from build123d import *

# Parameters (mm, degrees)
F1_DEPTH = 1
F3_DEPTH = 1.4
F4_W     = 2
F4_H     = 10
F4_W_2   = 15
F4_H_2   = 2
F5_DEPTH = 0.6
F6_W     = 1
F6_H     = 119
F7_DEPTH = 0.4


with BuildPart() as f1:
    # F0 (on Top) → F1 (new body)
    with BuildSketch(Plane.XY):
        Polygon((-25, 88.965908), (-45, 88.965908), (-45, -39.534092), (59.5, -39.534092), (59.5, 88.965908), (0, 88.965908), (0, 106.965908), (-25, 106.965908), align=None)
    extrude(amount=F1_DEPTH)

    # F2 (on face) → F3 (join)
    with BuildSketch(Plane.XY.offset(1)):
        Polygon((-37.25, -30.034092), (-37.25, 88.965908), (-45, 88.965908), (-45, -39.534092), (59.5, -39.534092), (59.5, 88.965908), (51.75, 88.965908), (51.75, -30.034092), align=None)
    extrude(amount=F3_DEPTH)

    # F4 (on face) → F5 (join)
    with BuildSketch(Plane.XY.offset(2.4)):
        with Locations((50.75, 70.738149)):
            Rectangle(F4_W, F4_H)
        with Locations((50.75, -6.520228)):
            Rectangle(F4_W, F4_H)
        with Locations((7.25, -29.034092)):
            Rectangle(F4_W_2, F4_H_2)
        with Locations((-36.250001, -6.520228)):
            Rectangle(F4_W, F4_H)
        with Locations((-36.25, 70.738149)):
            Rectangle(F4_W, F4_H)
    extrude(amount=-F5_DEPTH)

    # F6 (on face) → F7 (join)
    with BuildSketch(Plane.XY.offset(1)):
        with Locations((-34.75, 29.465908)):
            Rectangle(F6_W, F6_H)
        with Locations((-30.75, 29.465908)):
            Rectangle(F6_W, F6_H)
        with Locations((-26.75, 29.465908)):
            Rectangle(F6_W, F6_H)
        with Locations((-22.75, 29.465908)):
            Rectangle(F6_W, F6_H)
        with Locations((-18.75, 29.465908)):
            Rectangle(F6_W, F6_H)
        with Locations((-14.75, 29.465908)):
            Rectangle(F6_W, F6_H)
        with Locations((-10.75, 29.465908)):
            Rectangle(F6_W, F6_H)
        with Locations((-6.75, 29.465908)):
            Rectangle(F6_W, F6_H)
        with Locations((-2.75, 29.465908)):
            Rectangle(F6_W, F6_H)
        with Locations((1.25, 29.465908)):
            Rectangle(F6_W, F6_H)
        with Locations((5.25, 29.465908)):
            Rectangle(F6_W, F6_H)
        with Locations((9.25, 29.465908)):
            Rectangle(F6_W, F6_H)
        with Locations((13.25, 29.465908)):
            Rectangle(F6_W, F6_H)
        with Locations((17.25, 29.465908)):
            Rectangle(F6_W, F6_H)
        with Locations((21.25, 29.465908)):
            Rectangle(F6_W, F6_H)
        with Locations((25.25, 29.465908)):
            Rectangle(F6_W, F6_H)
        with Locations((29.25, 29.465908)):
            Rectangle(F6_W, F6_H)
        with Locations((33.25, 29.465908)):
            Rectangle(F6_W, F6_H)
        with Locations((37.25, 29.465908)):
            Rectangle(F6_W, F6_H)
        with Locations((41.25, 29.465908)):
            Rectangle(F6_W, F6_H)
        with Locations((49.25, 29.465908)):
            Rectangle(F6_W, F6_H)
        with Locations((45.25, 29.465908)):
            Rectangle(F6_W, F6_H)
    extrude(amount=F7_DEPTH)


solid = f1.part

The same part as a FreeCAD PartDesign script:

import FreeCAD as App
import Part
import Sketcher

V = App.Vector


def add_polygon(sketch, points):
    """Adds a closed chain of lines whose ends are joined by coincident constraints."""
    first, n = sketch.GeometryCount, len(points)
    for a, b in zip(points, points[1:] + points[:1]):
        sketch.addGeometry(Part.LineSegment(App.Vector(*a, 0), App.Vector(*b, 0)), False)
    for i in range(n):
        sketch.addConstraint(Sketcher.Constraint("Coincident", first + i, 2, first + (i + 1) % n, 1))

doc = App.newDocument("Part")
params = doc.addObject("Spreadsheet::Sheet", "Params")
for row, (alias, value) in enumerate([
    ("sketch1_width", "20 mm"),
    ("sketch1_width2", "25 mm"),
    ("sketch1_height", "18 mm"),
    ("sketch1_width3", "104.5 mm"),
    ("sketch1_height2", "128.5 mm"),
    ("pad1_length", "1 mm"),
    ("sketch2_width", "89 mm"),
    ("sketch2_height", "119 mm"),
    ("sketch2_width2", "104.5 mm"),
    ("sketch2_height2", "128.5 mm"),
    ("pad2_length", "1.4 mm"),
    ("sketch3_width", "2 mm"),
    ("sketch3_width2", "15 mm"),
    ("sketch3_height", "10 mm"),
    ("pad3_length", "0.6 mm"),
    ("sketch4_width", "1 mm"),
    ("sketch4_height", "119 mm"),
    ("pad4_length", "0.4 mm"),
], start=1):
    params.set(f"A{row}", alias)
    params.set(f"B{row}", "=" + value)
    params.setAlias(f"B{row}", alias)

body = doc.addObject("PartDesign::Body", "Body")

sketch1 = body.newObject("Sketcher::SketchObject", "Sketch")
sketch1.AttachmentSupport = (doc.getObject("XY_Plane"), [""])
sketch1.MapMode = "FlatFace"
add_polygon(sketch1, [(-25, 89), (-45, 89), (-45, -40), (60, -40), (60, 89), (0, 89), (0, 107), (-25, 107)])
sketch1.addConstraint([
    Sketcher.Constraint("Horizontal", 0),
    Sketcher.Constraint("Vertical", 1),
    Sketcher.Constraint("Horizontal", 2),
    Sketcher.Constraint("Vertical", 3),
    Sketcher.Constraint("Horizontal", 4),
    Sketcher.Constraint("Vertical", 5),
    Sketcher.Constraint("Horizontal", 6),
    Sketcher.Constraint("Vertical", 7),
    Sketcher.Constraint("PointOnObject", 4, 2, -2),
    Sketcher.Constraint("Horizontal", 0, 2, 3, 2),
    Sketcher.Constraint("DistanceX", 0, 2, 0, 1, 20.0),
    Sketcher.Constraint("DistanceX", 6, 2, 6, 1, 25.0),
    Sketcher.Constraint("DistanceY", 5, 1, 5, 2, 18.0),
    Sketcher.Constraint("DistanceX", 2, 1, 2, 2, 104.5),
    Sketcher.Constraint("DistanceY", 1, 2, 1, 1, 128.5),
    Sketcher.Constraint("DistanceY", -1, 1, 0, 2, 88.965908),
])
sketch1.setExpression("Constraints[18]", "Params.sketch1_width")
sketch1.setExpression("Constraints[19]", "Params.sketch1_width2")
sketch1.setExpression("Constraints[20]", "Params.sketch1_height")
sketch1.setExpression("Constraints[21]", "Params.sketch1_width3")
sketch1.setExpression("Constraints[22]", "Params.sketch1_height2")
pad1 = body.newObject("PartDesign::Pad", "Pad")
pad1.Profile = sketch1
pad1.setExpression("Length", "Params.pad1_length")

sketch2 = body.newObject("Sketcher::SketchObject", "Sketch001")
sketch2.AttachmentSupport = (doc.getObject("XY_Plane"), [""])
sketch2.MapMode = "FlatFace"
sketch2.AttachmentOffset = App.Placement(V(0, 0, 1), App.Rotation())
add_polygon(sketch2, [(-37, -30), (-37, 89), (-45, 89), (-45, -40), (60, -40), (60, 89), (52, 89), (52, -30)])
sketch2.addConstraint([
    Sketcher.Constraint("Vertical", 0),
    Sketcher.Constraint("Horizontal", 1),
    Sketcher.Constraint("Vertical", 2),
    Sketcher.Constraint("Horizontal", 3),
    Sketcher.Constraint("Vertical", 4),
    Sketcher.Constraint("Horizontal", 5),
    Sketcher.Constraint("Vertical", 6),
    Sketcher.Constraint("Horizontal", 7),
    Sketcher.Constraint("Horizontal", 1, 2, 4, 2),
    Sketcher.Constraint("Equal", 1, 5),
    Sketcher.Constraint("DistanceX", 7, 2, 7, 1, 89.0),
    Sketcher.Constraint("DistanceY", 0, 1, 0, 2, 119.0),
    Sketcher.Constraint("DistanceX", 3, 1, 3, 2, 104.5),
    Sketcher.Constraint("DistanceY", 2, 2, 2, 1, 128.5),
    Sketcher.Constraint("DistanceX", 1, 2, -1, 1, 45.0),
    Sketcher.Constraint("DistanceY", -1, 1, 0, 2, 88.965908),
])
sketch2.setExpression("Constraints[18]", "Params.sketch2_width")
sketch2.setExpression("Constraints[19]", "Params.sketch2_height")
sketch2.setExpression("Constraints[20]", "Params.sketch2_width2")
sketch2.setExpression("Constraints[21]", "Params.sketch2_height2")
pad2 = body.newObject("PartDesign::Pad", "Pad001")
pad2.Profile = sketch2
pad2.setExpression("Length", "Params.pad2_length")

sketch3 = body.newObject("Sketcher::SketchObject", "Sketch002")
sketch3.AttachmentSupport = (doc.getObject("XY_Plane"), [""])
sketch3.MapMode = "FlatFace"
sketch3.AttachmentOffset = App.Placement(V(0, 0, 2.4), App.Rotation())
add_polygon(sketch3, [(49.8, 75.7), (49.8, 65.7), (51.8, 65.7), (51.8, 75.7)])
add_polygon(sketch3, [(49.8, -1.5), (49.8, -11.5), (51.8, -11.5), (51.8, -1.5)])
add_polygon(sketch3, [(-0.2, -28), (-0.2, -30), (14.8, -30), (14.8, -28)])
add_polygon(sketch3, [(-37.3, -1.5), (-37.3, -11.5), (-35.3, -11.5), (-35.3, -1.5)])
add_polygon(sketch3, [(-37.2, 75.7), (-37.2, 65.7), (-35.2, 65.7), (-35.2, 75.7)])
sketch3.addConstraint([
    Sketcher.Constraint("Vertical", 0),
    Sketcher.Constraint("Horizontal", 1),
    Sketcher.Constraint("Vertical", 2),
    Sketcher.Constraint("Horizontal", 3),
    Sketcher.Constraint("Vertical", 4),
    Sketcher.Constraint("Horizontal", 5),
    Sketcher.Constraint("Vertical", 6),
    Sketcher.Constraint("Horizontal", 7),
    Sketcher.Constraint("Vertical", 8),
    Sketcher.Constraint("Horizontal", 9),
    Sketcher.Constraint("Vertical", 10),
    Sketcher.Constraint("Horizontal", 11),
    Sketcher.Constraint("Vertical", 12),
    Sketcher.Constraint("Horizontal", 13),
    Sketcher.Constraint("Vertical", 14),
    Sketcher.Constraint("Horizontal", 15),
    Sketcher.Constraint("Vertical", 16),
    Sketcher.Constraint("Horizontal", 17),
    Sketcher.Constraint("Vertical", 18),
    Sketcher.Constraint("Horizontal", 19),
    Sketcher.Constraint("Horizontal", 5, 2, 12, 2),
    Sketcher.Constraint("Horizontal", 7, 2, 14, 2),
    Sketcher.Constraint("Horizontal", 1, 2, 16, 2),
    Sketcher.Constraint("Horizontal", 3, 2, 18, 2),
    Sketcher.Constraint("Vertical", 3, 2, 4, 2),
    Sketcher.Constraint("Vertical", 2, 2, 5, 2),
    Sketcher.Constraint("Vertical", 15, 2, 16, 2),
    Sketcher.Constraint("Vertical", 14, 2, 17, 2),
    Sketcher.Constraint("Equal", 7, 13),
    Sketcher.Constraint("Equal", 2, 4),
    Sketcher.Constraint("Equal", 19, 8),
    Sketcher.Constraint("DistanceX", 1, 1, 1, 2, 2.0),
    Sketcher.Constraint("DistanceX", 9, 1, 9, 2, 15.0),
    Sketcher.Constraint("DistanceY", 0, 2, 0, 1, 10.0),
    Sketcher.Constraint("DistanceX", 8, 2, 4, 2, 50.0),
    Sketcher.Constraint("DistanceX", 12, 2, 11, 2, 37.000001),
    Sketcher.Constraint("DistanceX", -1, 1, 0, 2, 49.75),
    Sketcher.Constraint("DistanceY", -1, 1, 0, 2, 65.738149),
    Sketcher.Constraint("DistanceY", 8, 2, 0, 2, 95.772241),
    Sketcher.Constraint("DistanceY", 4, 2, -1, 1, 11.520228),
])
sketch3.setExpression("Constraints[51]", "Params.sketch3_width")
sketch3.setExpression("Constraints[52]", "Params.sketch3_width2")
sketch3.setExpression("Constraints[53]", "Params.sketch3_height")
pad3 = body.newObject("PartDesign::Pad", "Pad002")
pad3.Profile = sketch3
pad3.setExpression("Length", "Params.pad3_length")
pad3.Reversed = True

sketch4 = body.newObject("Sketcher::SketchObject", "Sketch003")
sketch4.AttachmentSupport = (doc.getObject("XY_Plane"), [""])
sketch4.MapMode = "FlatFace"
sketch4.AttachmentOffset = App.Placement(V(0, 0, 1), App.Rotation())
add_polygon(sketch4, [(-35.2, 89), (-35.2, -30), (-34.2, -30), (-34.2, 89)])
add_polygon(sketch4, [(-31.2, 89), (-31.2, -30), (-30.2, -30), (-30.2, 89)])
add_polygon(sketch4, [(-27.2, 89), (-27.2, -30), (-26.2, -30), (-26.2, 89)])
add_polygon(sketch4, [(-23.2, 89), (-23.2, -30), (-22.2, -30), (-22.2, 89)])
add_polygon(sketch4, [(-19.2, 89), (-19.2, -30), (-18.2, -30), (-18.2, 89)])
add_polygon(sketch4, [(-15.2, 89), (-15.2, -30), (-14.2, -30), (-14.2, 89)])
add_polygon(sketch4, [(-11.2, 89), (-11.2, -30), (-10.2, -30), (-10.2, 89)])
add_polygon(sketch4, [(-7.2, 89), (-7.2, -30), (-6.2, -30), (-6.2, 89)])
add_polygon(sketch4, [(-3.2, 89), (-3.2, -30), (-2.2, -30), (-2.2, 89)])
add_polygon(sketch4, [(0.8, 89), (0.8, -30), (1.8, -30), (1.8, 89)])
add_polygon(sketch4, [(4.8, 89), (4.8, -30), (5.8, -30), (5.8, 89)])
add_polygon(sketch4, [(8.8, 89), (8.8, -30), (9.8, -30), (9.8, 89)])
add_polygon(sketch4, [(12.8, 89), (12.8, -30), (13.8, -30), (13.8, 89)])
add_polygon(sketch4, [(16.8, 89), (16.8, -30), (17.8, -30), (17.8, 89)])
add_polygon(sketch4, [(20.8, 89), (20.8, -30), (21.8, -30), (21.8, 89)])
add_polygon(sketch4, [(24.8, 89), (24.8, -30), (25.8, -30), (25.8, 89)])
add_polygon(sketch4, [(28.8, 89), (28.8, -30), (29.8, -30), (29.8, 89)])
add_polygon(sketch4, [(32.8, 89), (32.8, -30), (33.8, -30), (33.8, 89)])
add_polygon(sketch4, [(36.8, 89), (36.8, -30), (37.8, -30), (37.8, 89)])
add_polygon(sketch4, [(40.8, 89), (40.8, -30), (41.8, -30), (41.8, 89)])
add_polygon(sketch4, [(48.8, 89), (48.8, -30), (49.8, -30), (49.8, 89)])
add_polygon(sketch4, [(44.8, 89), (44.8, -30), (45.8, -30), (45.8, 89)])
sketch4.addConstraint([
    Sketcher.Constraint("Vertical", 0),
    Sketcher.Constraint("Horizontal", 1),
    Sketcher.Constraint("Vertical", 2),
    Sketcher.Constraint("Horizontal", 3),
    Sketcher.Constraint("Vertical", 4),
    Sketcher.Constraint("Horizontal", 5),
    Sketcher.Constraint("Vertical", 6),
    Sketcher.Constraint("Horizontal", 7),
    Sketcher.Constraint("Vertical", 8),
    Sketcher.Constraint("Horizontal", 9),
    Sketcher.Constraint("Vertical", 10),
    Sketcher.Constraint("Horizontal", 11),
    Sketcher.Constraint("Vertical", 12),
    Sketcher.Constraint("Horizontal", 13),
    Sketcher.Constraint("Vertical", 14),
    Sketcher.Constraint("Horizontal", 15),
    Sketcher.Constraint("Vertical", 16),
    Sketcher.Constraint("Horizontal", 17),
    Sketcher.Constraint("Vertical", 18),
    Sketcher.Constraint("Horizontal", 19),
    Sketcher.Constraint("Vertical", 20),
    Sketcher.Constraint("Horizontal", 21),
    Sketcher.Constraint("Vertical", 22),
    Sketcher.Constraint("Horizontal", 23),
    Sketcher.Constraint("Vertical", 24),
    Sketcher.Constraint("Horizontal", 25),
    Sketcher.Constraint("Vertical", 26),
    Sketcher.Constraint("Horizontal", 27),
    Sketcher.Constraint("Vertical", 28),
    Sketcher.Constraint("Horizontal", 29),
    Sketcher.Constraint("Vertical", 30),
    Sketcher.Constraint("Horizontal", 31),
    Sketcher.Constraint("Vertical", 32),
    Sketcher.Constraint("Horizontal", 33),
    Sketcher.Constraint("Vertical", 34),
    Sketcher.Constraint("Horizontal", 35),
    Sketcher.Constraint("Vertical", 36),
    Sketcher.Constraint("Horizontal", 37),
    Sketcher.Constraint("Vertical", 38),
    Sketcher.Constraint("Horizontal", 39),
    Sketcher.Constraint("Vertical", 40),
    Sketcher.Constraint("Horizontal", 41),
    Sketcher.Constraint("Vertical", 42),
    Sketcher.Constraint("Horizontal", 43),
    Sketcher.Constraint("Vertical", 44),
    Sketcher.Constraint("Horizontal", 45),
    Sketcher.Constraint("Vertical", 46),
    Sketcher.Constraint("Horizontal", 47),
    Sketcher.Constraint("Vertical", 48),
    Sketcher.Constraint("Horizontal", 49),
    Sketcher.Constraint("Vertical", 50),
    Sketcher.Constraint("Horizontal", 51),
    Sketcher.Constraint("Vertical", 52),
    Sketcher.Constraint("Horizontal", 53),
    Sketcher.Constraint("Vertical", 54),
    Sketcher.Constraint("Horizontal", 55),
    Sketcher.Constraint("Vertical", 56),
    Sketcher.Constraint("Horizontal", 57),
    Sketcher.Constraint("Vertical", 58),
    Sketcher.Constraint("Horizontal", 59),
    Sketcher.Constraint("Vertical", 60),
    Sketcher.Constraint("Horizontal", 61),
    Sketcher.Constraint("Vertical", 62),
    Sketcher.Constraint("Horizontal", 63),
    Sketcher.Constraint("Vertical", 64),
    Sketcher.Constraint("Horizontal", 65),
    Sketcher.Constraint("Vertical", 66),
    Sketcher.Constraint("Horizontal", 67),
    Sketcher.Constraint("Vertical", 68),
    Sketcher.Constraint("Horizontal", 69),
    Sketcher.Constraint("Vertical", 70),
    Sketcher.Constraint("Horizontal", 71),
    Sketcher.Constraint("Vertical", 72),
    Sketcher.Constraint("Horizontal", 73),
    Sketcher.Constraint("Vertical", 74),
    Sketcher.Constraint("Horizontal", 75),
    Sketcher.Constraint("Vertical", 76),
    Sketcher.Constraint("Horizontal", 77),
    Sketcher.Constraint("Vertical", 78),
    Sketcher.Constraint("Horizontal", 79),
    Sketcher.Constraint("Vertical", 80),
    Sketcher.Constraint("Horizontal", 81),
    Sketcher.Constraint("Vertical", 82),
    Sketcher.Constraint("Horizontal", 83),
    Sketcher.Constraint("Vertical", 84),
    Sketcher.Constraint("Horizontal", 85),
    Sketcher.Constraint("Vertical", 86),
    Sketcher.Constraint("Horizontal", 87),
    Sketcher.Constraint("Horizontal", 1, 2, 4, 2),
    Sketcher.Constraint("Horizontal", 3, 2, 6, 2),
    Sketcher.Constraint("Horizontal", 5, 2, 8, 2),
    Sketcher.Constraint("Horizontal", 7, 2, 10, 2),
    Sketcher.Constraint("Horizontal", 9, 2, 12, 2),
    Sketcher.Constraint("Horizontal", 11, 2, 14, 2),
    Sketcher.Constraint("Horizontal", 13, 2, 16, 2),
    Sketcher.Constraint("Horizontal", 15, 2, 18, 2),
    Sketcher.Constraint("Horizontal", 17, 2, 20, 2),
    Sketcher.Constraint("Horizontal", 19, 2, 22, 2),
    Sketcher.Constraint("Horizontal", 21, 2, 24, 2),
    Sketcher.Constraint("Horizontal", 23, 2, 26, 2),
    Sketcher.Constraint("Horizontal", 25, 2, 28, 2),
    Sketcher.Constraint("Horizontal", 27, 2, 30, 2),
    Sketcher.Constraint("Horizontal", 29, 2, 32, 2),
    Sketcher.Constraint("Horizontal", 31, 2, 34, 2),
    Sketcher.Constraint("Horizontal", 33, 2, 36, 2),
    Sketcher.Constraint("Horizontal", 35, 2, 38, 2),
    Sketcher.Constraint("Horizontal", 37, 2, 40, 2),
    Sketcher.Constraint("Horizontal", 39, 2, 42, 2),
    Sketcher.Constraint("Horizontal", 41, 2, 44, 2),
    Sketcher.Constraint("Horizontal", 43, 2, 46, 2),
    Sketcher.Constraint("Horizontal", 45, 2, 48, 2),
    Sketcher.Constraint("Horizontal", 47, 2, 50, 2),
    Sketcher.Constraint("Horizontal", 49, 2, 52, 2),
    Sketcher.Constraint("Horizontal", 51, 2, 54, 2),
    Sketcher.Constraint("Horizontal", 53, 2, 56, 2),
    Sketcher.Constraint("Horizontal", 55, 2, 58, 2),
    Sketcher.Constraint("Horizontal", 57, 2, 60, 2),
    Sketcher.Constraint("Horizontal", 59, 2, 62, 2),
    Sketcher.Constraint("Horizontal", 61, 2, 64, 2),
    Sketcher.Constraint("Horizontal", 63, 2, 66, 2),
    Sketcher.Constraint("Horizontal", 65, 2, 68, 2),
    Sketcher.Constraint("Horizontal", 67, 2, 70, 2),
    Sketcher.Constraint("Horizontal", 69, 2, 72, 2),
    Sketcher.Constraint("Horizontal", 71, 2, 74, 2),
    Sketcher.Constraint("Horizontal", 73, 2, 76, 2),
    Sketcher.Constraint("Horizontal", 75, 2, 78, 2),
    Sketcher.Constraint("Horizontal", 77, 2, 80, 2),
    Sketcher.Constraint("Horizontal", 79, 2, 82, 2),
    Sketcher.Constraint("Horizontal", 81, 2, 84, 2),
    Sketcher.Constraint("Horizontal", 83, 2, 86, 2),
    Sketcher.Constraint("Equal", 3, 5),
    Sketcher.Constraint("Equal", 7, 9),
    Sketcher.Constraint("Equal", 11, 13),
    Sketcher.Constraint("Equal", 15, 17),
    Sketcher.Constraint("Equal", 19, 21),
    Sketcher.Constraint("Equal", 23, 25),
    Sketcher.Constraint("Equal", 27, 29),
    Sketcher.Constraint("Equal", 31, 33),
    Sketcher.Constraint("Equal", 35, 37),
    Sketcher.Constraint("Equal", 39, 41),
    Sketcher.Constraint("Equal", 43, 45),
    Sketcher.Constraint("Equal", 47, 49),
    Sketcher.Constraint("Equal", 51, 53),
    Sketcher.Constraint("Equal", 55, 57),
    Sketcher.Constraint("Equal", 59, 61),
    Sketcher.Constraint("Equal", 63, 65),
    Sketcher.Constraint("Equal", 67, 69),
    Sketcher.Constraint("Equal", 71, 73),
    Sketcher.Constraint("Equal", 75, 77),
    Sketcher.Constraint("Equal", 79, 81),
    Sketcher.Constraint("Equal", 83, 85),
    Sketcher.Constraint("DistanceX", 1, 1, 1, 2, 1.0),
    Sketcher.Constraint("DistanceY", 0, 2, 0, 1, 119.0),
    Sketcher.Constraint("DistanceX", 0, 2, -1, 1, 35.25),
    Sketcher.Constraint("DistanceX", 4, 2, -1, 1, 31.25),
    Sketcher.Constraint("DistanceX", 8, 2, -1, 1, 27.25),
    Sketcher.Constraint("DistanceX", 12, 2, -1, 1, 23.25),
    Sketcher.Constraint("DistanceX", 16, 2, -1, 1, 19.25),
    Sketcher.Constraint("DistanceX", 20, 2, -1, 1, 15.25),
    Sketcher.Constraint("DistanceX", 24, 2, -1, 1, 11.25),
    Sketcher.Constraint("DistanceX", 28, 2, -1, 1, 7.25),
    Sketcher.Constraint("DistanceX", 32, 2, -1, 1, 3.25),
    Sketcher.Constraint("DistanceX", -1, 1, 36, 2, 0.75),
    Sketcher.Constraint("DistanceX", -1, 1, 40, 2, 4.75),
    Sketcher.Constraint("DistanceX", -1, 1, 44, 2, 8.75),
    Sketcher.Constraint("DistanceX", -1, 1, 48, 2, 12.75),
    Sketcher.Constraint("DistanceX", -1, 1, 52, 2, 16.75),
    Sketcher.Constraint("DistanceX", -1, 1, 56, 2, 20.75),
    Sketcher.Constraint("DistanceX", -1, 1, 60, 2, 24.75),
    Sketcher.Constraint("DistanceX", -1, 1, 64, 2, 28.75),
    Sketcher.Constraint("DistanceX", -1, 1, 68, 2, 32.75),
    Sketcher.Constraint("DistanceX", -1, 1, 72, 2, 36.75),
    Sketcher.Constraint("DistanceX", -1, 1, 76, 2, 40.75),
    Sketcher.Constraint("DistanceX", -1, 1, 80, 2, 48.75),
    Sketcher.Constraint("DistanceX", -1, 1, 84, 2, 44.75),
    Sketcher.Constraint("DistanceY", -1, 1, 2, 2, 88.965908),
])
sketch4.setExpression("Constraints[239]", "Params.sketch4_width")
sketch4.setExpression("Constraints[240]", "Params.sketch4_height")
pad4 = body.newObject("PartDesign::Pad", "Pad003")
pad4.Profile = sketch4
pad4.setExpression("Length", "Params.pad4_length")

doc.recompute()
